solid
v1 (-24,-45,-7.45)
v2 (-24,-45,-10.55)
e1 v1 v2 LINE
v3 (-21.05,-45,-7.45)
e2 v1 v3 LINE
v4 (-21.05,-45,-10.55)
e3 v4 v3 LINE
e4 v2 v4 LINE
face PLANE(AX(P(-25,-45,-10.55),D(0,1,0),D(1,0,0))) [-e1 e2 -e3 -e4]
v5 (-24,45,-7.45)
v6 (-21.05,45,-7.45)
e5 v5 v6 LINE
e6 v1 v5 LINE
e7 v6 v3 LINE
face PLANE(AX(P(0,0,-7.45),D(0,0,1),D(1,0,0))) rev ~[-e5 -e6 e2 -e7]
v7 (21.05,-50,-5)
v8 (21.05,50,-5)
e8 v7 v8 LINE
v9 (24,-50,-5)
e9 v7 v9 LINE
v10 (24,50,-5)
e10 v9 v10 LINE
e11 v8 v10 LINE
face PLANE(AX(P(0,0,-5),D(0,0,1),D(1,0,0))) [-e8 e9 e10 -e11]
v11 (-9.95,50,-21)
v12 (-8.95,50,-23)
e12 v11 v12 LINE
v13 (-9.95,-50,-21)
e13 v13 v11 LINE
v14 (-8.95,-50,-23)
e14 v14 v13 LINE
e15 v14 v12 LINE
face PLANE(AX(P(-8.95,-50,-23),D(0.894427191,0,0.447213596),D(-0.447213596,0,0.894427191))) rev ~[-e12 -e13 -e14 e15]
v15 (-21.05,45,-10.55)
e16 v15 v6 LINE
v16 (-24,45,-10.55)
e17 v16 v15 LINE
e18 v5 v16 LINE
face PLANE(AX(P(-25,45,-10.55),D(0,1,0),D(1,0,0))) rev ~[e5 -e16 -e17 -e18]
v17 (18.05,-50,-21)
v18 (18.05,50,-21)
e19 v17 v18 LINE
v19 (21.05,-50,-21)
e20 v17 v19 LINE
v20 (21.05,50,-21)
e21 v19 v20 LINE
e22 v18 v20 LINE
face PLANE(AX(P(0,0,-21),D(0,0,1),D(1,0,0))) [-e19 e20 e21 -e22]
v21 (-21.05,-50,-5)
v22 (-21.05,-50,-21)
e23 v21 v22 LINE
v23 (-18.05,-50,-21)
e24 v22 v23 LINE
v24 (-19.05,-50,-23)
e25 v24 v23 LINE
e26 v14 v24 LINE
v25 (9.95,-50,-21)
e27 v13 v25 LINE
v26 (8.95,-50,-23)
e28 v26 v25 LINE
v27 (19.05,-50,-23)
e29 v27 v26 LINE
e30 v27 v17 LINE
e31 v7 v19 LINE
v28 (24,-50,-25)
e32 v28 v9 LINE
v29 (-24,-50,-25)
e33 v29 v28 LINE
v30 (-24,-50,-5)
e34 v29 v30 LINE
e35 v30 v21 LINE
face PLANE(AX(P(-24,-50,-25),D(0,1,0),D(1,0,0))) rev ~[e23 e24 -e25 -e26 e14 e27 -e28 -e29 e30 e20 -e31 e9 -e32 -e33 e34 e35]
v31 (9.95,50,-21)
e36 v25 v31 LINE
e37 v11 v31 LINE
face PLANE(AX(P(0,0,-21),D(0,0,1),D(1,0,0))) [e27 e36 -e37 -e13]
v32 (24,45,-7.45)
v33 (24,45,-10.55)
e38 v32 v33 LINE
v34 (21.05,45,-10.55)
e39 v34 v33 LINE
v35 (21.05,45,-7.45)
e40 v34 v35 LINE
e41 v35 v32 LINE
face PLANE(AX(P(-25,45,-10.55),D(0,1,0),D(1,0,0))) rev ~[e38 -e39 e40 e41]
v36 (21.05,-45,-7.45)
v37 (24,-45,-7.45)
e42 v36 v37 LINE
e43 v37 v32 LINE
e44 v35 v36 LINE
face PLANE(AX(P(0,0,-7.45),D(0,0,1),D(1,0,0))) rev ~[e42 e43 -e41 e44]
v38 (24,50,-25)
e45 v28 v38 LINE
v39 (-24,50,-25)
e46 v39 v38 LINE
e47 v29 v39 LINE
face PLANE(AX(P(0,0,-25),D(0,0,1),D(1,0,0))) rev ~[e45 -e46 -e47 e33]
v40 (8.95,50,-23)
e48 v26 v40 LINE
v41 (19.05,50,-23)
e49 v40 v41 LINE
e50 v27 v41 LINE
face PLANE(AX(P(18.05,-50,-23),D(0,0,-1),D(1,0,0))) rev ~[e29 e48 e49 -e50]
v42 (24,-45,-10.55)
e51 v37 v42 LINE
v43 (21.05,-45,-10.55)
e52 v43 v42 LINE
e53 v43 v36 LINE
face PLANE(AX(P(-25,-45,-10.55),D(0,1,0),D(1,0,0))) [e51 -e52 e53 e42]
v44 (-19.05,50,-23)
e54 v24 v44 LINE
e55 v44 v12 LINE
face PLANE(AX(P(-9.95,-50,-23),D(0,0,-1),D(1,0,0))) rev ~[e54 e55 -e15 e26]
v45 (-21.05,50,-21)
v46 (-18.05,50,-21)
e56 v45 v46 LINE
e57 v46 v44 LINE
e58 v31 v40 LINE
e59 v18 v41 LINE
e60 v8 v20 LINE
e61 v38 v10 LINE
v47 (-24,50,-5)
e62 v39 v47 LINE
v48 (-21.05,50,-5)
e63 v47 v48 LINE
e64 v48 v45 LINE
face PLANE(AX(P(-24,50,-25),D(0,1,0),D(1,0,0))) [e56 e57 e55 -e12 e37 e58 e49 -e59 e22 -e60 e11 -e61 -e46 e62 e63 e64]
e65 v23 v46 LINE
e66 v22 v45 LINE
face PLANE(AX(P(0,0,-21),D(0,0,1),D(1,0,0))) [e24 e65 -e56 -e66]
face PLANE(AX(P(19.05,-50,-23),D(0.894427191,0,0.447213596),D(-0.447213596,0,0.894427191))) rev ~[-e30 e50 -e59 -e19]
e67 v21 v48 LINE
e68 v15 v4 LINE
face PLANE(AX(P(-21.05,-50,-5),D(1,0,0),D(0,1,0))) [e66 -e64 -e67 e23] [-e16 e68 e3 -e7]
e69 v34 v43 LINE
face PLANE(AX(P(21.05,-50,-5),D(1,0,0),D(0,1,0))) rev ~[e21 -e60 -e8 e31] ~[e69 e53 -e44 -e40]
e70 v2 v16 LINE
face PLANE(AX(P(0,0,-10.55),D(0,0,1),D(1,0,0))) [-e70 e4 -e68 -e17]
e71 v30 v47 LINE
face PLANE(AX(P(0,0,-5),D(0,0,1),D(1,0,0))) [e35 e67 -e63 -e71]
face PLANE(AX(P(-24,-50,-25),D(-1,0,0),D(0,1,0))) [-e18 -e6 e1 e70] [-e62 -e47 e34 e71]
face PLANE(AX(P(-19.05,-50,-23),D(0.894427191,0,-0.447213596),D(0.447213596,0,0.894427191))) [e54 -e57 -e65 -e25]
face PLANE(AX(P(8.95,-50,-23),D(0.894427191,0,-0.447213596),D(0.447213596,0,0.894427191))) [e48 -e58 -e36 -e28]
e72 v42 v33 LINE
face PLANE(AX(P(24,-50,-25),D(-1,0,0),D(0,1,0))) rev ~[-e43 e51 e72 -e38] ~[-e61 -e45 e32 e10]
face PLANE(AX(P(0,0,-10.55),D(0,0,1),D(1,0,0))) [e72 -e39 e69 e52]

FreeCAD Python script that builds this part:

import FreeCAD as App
import Part
import Sketcher
from FreeCAD import Vector
Q = App.Units.Quantity


def add_polygon(sketch, points):
    """Adds a closed chain of lines whose ends are joined by coincident constraints."""
    first, n = sketch.GeometryCount, len(points)
    for a, b in zip(points, points[1:] + points[:1]):
        sketch.addGeometry(Part.LineSegment(App.Vector(*a, 0), App.Vector(*b, 0)), False)
    for i in range(n):
        sketch.addConstraint(Sketcher.Constraint("Coincident", first + i, 2, first + (i + 1) % n, 1))

doc = App.newDocument("Part")
body = doc.addObject("PartDesign::Body", "Body")

sketch1 = doc.addObject("Sketcher::SketchObject", "Sketch")
body.addObject(sketch1)
sketch1.AttachmentSupport = (doc.XY_Plane, [""])
sketch1.MapMode = "FlatFace"
sketch1.AttachmentOffset = App.Placement(Vector(0, 0, -10.55), App.Rotation())
add_polygon(sketch1, [(-25, 45), (-25, -45), (25, -45), (25, 45)])
sketch1.addConstraint(Sketcher.Constraint("Vertical", 0))
sketch1.addConstraint(Sketcher.Constraint("Horizontal", 1))
sketch1.addConstraint(Sketcher.Constraint("Vertical", 2))
sketch1.addConstraint(Sketcher.Constraint("Horizontal", 3))
sketch1.addConstraint(Sketcher.Constraint("Symmetric", 0, 2, 2, 2, -1, 1))
sketch1.addConstraint(Sketcher.Constraint("DistanceX", 1, 1, 1, 2, Q("50 mm")))
sketch1.addConstraint(Sketcher.Constraint("DistanceY", 0, 2, 0, 1, Q("90 mm")))
pad1 = doc.addObject("PartDesign::Pad", "Pad")
body.addObject(pad1)
pad1.Profile = sketch1
pad1.Length = 3.1
body2 = doc.addObject("PartDesign::Body", "Body001")

sketch2 = doc.addObject("Sketcher::SketchObject", "Sketch001")
body2.addObject(sketch2)
sketch2.AttachmentSupport = (doc.getObject("XY_Plane001"), [""])
sketch2.MapMode = "FlatFace"
add_polygon(sketch2, [(-24, 50), (-24, -50), (24, -50), (24, 50)])
sketch2.addConstraint(Sketcher.Constraint("Vertical", 0))
sketch2.addConstraint(Sketcher.Constraint("Horizontal", 1))
sketch2.addConstraint(Sketcher.Constraint("Vertical", 2))
sketch2.addConstraint(Sketcher.Constraint("Horizontal", 3))
sketch2.addConstraint(Sketcher.Constraint("Symmetric", 0, 2, 2, 2, -1, 1))
sketch2.addConstraint(Sketcher.Constraint("DistanceX", 1, 1, 1, 2, Q("48 mm")))
sketch2.addConstraint(Sketcher.Constraint("DistanceY", 0, 2, 0, 1, Q("100 mm")))
pad2 = doc.addObject("PartDesign::Pad", "Pad001")
body2.addObject(pad2)
pad2.Profile = sketch2
pad2.Length = 20

sketch3 = doc.addObject("Sketcher::SketchObject", "Sketch002")
body2.addObject(sketch3)
sketch3.AttachmentSupport = (doc.getObject("XY_Plane001"), [""])
sketch3.MapMode = "FlatFace"
sketch3.AttachmentOffset = App.Placement(Vector(0, 0, 20), App.Rotation())
add_polygon(sketch3, [(-21, 50), (-21, -50), (21, -50), (21, 50)])
sketch3.addConstraint(Sketcher.Constraint("Vertical", 0))
sketch3.addConstraint(Sketcher.Constraint("Horizontal", 1))
sketch3.addConstraint(Sketcher.Constraint("Vertical", 2))
sketch3.addConstraint(Sketcher.Constraint("Horizontal", 3))
sketch3.addConstraint(Sketcher.Constraint("Symmetric", 0, 2, 2, 2, -1, 1))
sketch3.addConstraint(Sketcher.Constraint("DistanceY", 0, 2, 0, 1, Q("100 mm")))
sketch3.addConstraint(Sketcher.Constraint("DistanceX", 1, 1, 1, 2, Q("42.1 mm")))
pocket1 = doc.addObject("PartDesign::Pocket", "Pocket")
body2.addObject(pocket1)
pocket1.Profile = sketch3
pocket1.Length = 16

sketch4 = doc.addObject("Sketcher::SketchObject", "Sketch003")
body2.addObject(sketch4)
sketch4.AttachmentSupport = (doc.getObject("XY_Plane001"), [""])
sketch4.MapMode = "FlatFace"
sketch4.AttachmentOffset = App.Placement(Vector(0, 0, 4), App.Rotation())
add_polygon(sketch4, [(-18, 50), (-18, -50), (-10, -50), (-10, 50)])
add_polygon(sketch4, [(10, 50), (10, -50), (18, -50), (18, 50)])
sketch4.addConstraint(Sketcher.Constraint("Vertical", 0))
sketch4.addConstraint(Sketcher.Constraint("Horizontal", 1))
sketch4.addConstraint(Sketcher.Constraint("Vertical", 2))
sketch4.addConstraint(Sketcher.Constraint("Horizontal", 3))
sketch4.addConstraint(Sketcher.Constraint("Vertical", 4))
sketch4.addConstraint(Sketcher.Constraint("Horizontal", 5))
sketch4.addConstraint(Sketcher.Constraint("Vertical", 6))
sketch4.addConstraint(Sketcher.Constraint("Horizontal", 7))
sketch4.addConstraint(Sketcher.Constraint("Symmetric", 2, 2, 4, 2, -1, 1))
sketch4.addConstraint(Sketcher.Constraint("Symmetric", 0, 2, 6, 2, -1, 1))
sketch4.addConstraint(Sketcher.Constraint("Horizontal", 1, 2, 4, 2))
sketch4.addConstraint(Sketcher.Constraint("DistanceY", 0, 2, 0, 1, Q("100 mm")))
sketch4.addConstraint(Sketcher.Constraint("DistanceX", 1, 1, 1, 2, Q("8.1 mm")))
sketch4.addConstraint(Sketcher.Constraint("DistanceX", 0, 2, 4, 2, Q("28 mm")))
pocket2 = doc.addObject("PartDesign::Pocket", "Pocket001")
body2.addObject(pocket2)
pocket2.Profile = sketch4
pocket2.Length = 2

sketch5 = doc.addObject("Sketcher::SketchObject", "Sketch004")
body2.addObject(sketch5)
sketch5.AttachmentSupport = (doc.getObject("XZ_Plane001"), [""])
sketch5.MapMode = "FlatFace"
sketch5.AttachmentOffset = App.Placement(Vector(0, 0, 50), App.Rotation())
add_polygon(sketch5, [(-19.1, 2), (-18.1, 2), (-18.1, 4)])
add_polygon(sketch5, [(-9.9, 2), (-8.9, 2), (-9.9, 4)])
add_polygon(sketch5, [(8.9, 2), (9.9, 2), (9.9, 4)])
add_polygon(sketch5, [(18.1, 2), (19.1, 2), (18.1, 4)])
sketch5.addConstraint(Sketcher.Constraint("Horizontal", 0))
sketch5.addConstraint(Sketcher.Constraint("Vertical", 1))
sketch5.addConstraint(Sketcher.Constraint("Horizontal", 3))
sketch5.addConstraint(Sketcher.Constraint("Vertical", 5))
sketch5.addConstraint(Sketcher.Constraint("Horizontal", 6))
sketch5.addConstraint(Sketcher.Constraint("Vertical", 7))
sketch5.addConstraint(Sketcher.Constraint("Horizontal", 9))
sketch5.addConstraint(Sketcher.Constraint("Vertical", 11))
sketch5.addConstraint(Sketcher.Constraint("Symmetric", 5, 2, 6, 2, -2))
sketch5.addConstraint(Sketcher.Constraint("Symmetric", 2, 2, 9, 2, -2))
sketch5.addConstraint(Sketcher.Constraint("Symmetric", 1, 2, 10, 2, -2))
sketch5.addConstraint(Sketcher.Constraint("Parallel", 2, 8))
sketch5.addConstraint(Sketcher.Constraint("Parallel", 4, 10))
sketch5.addConstraint(Sketcher.Constraint("Horizontal", 2, 2, 3, 2))
sketch5.addConstraint(Sketcher.Constraint("Horizontal", 1, 2, 4, 2))
sketch5.addConstraint(Sketcher.Constraint("Horizontal", 4, 2, 7, 2))
sketch5.addConstraint(Sketcher.Constraint("DistanceX", 0, 1, 0, 2, Q("1 mm")))
sketch5.addConstraint(Sketcher.Constraint("DistanceY", 1, 1, 1, 2, Q("2 mm")))
sketch5.addConstraint(Sketcher.Constraint("DistanceY", -1, 1, 0, 2, Q("2 mm")))
sketch5.addConstraint(Sketcher.Constraint("DistanceX", 0, 2, 6, 2, Q("28 mm")))
sketch5.addConstraint(Sketcher.Constraint("DistanceX", 0, 2, 3, 2, Q("9.1 mm")))
pocket3 = doc.addObject("PartDesign::Pocket", "Pocket002")
body2.addObject(pocket3)
pocket3.Profile = sketch5
pocket3.Type = "ThroughAll"
body3 = doc.addObject("PartDesign::Body", "Body002")
doc.recompute()

body2.Placement = App.Placement(Vector(0, 0, -25), App.Rotation(Vector(0, 0, 1), 0))
boolean = doc.addObject("PartDesign::Boolean", "Boolean")
body3.addObject(boolean)
boolean.Type = "Fuse"
boolean.addObjects([body2])
doc.recompute()

boolean2 = doc.addObject("PartDesign::Boolean", "Boolean001")
body3.addObject(boolean2)
boolean2.Type = "Cut"
boolean2.addObjects([body])

doc.recompute()
